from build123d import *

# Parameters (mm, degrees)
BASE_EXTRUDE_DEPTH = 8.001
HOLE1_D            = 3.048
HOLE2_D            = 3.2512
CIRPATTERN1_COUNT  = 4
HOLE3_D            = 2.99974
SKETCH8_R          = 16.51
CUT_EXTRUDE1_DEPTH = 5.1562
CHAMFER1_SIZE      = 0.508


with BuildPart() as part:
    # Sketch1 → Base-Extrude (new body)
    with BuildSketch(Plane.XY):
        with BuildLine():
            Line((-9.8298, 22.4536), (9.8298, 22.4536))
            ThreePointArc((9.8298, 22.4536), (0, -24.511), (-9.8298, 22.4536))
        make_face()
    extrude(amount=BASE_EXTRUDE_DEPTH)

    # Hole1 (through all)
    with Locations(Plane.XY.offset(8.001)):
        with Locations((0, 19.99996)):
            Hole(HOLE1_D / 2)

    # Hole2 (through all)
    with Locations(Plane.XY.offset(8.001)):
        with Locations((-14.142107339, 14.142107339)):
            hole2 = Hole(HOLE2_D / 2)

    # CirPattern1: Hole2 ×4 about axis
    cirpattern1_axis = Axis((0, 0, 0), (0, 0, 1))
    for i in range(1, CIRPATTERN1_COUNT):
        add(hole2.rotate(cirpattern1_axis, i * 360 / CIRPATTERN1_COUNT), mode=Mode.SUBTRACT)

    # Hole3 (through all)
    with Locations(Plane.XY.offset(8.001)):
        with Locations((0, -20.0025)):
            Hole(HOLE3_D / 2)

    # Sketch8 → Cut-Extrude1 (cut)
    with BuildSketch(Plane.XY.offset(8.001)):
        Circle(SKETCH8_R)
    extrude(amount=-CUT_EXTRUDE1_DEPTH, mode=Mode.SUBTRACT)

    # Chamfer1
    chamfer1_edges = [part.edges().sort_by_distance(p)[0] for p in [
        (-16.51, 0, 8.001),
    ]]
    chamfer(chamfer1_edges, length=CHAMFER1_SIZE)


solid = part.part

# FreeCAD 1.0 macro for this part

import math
import FreeCAD as App
import Part
import Sketcher

V = App.Vector
Q = App.Units.Quantity


def edges_at(feature, points):
    """Names of the edges that pass closest to the given points."""
    edges = feature.Shape.Edges
    near = lambda p: min(range(len(edges)), key=lambda i: edges[i].distToShape(Part.Vertex(*p))[0])
    return sorted({f"Edge{near(p) + 1}" for p in points})

doc = App.newDocument("Part")
body = doc.addObject("PartDesign::Body", "Body")

sketch1 = body.newObject("Sketcher::SketchObject", "Sketch")
sketch1.AttachmentSupport = (doc.getObject("XY_Plane"), [""])
sketch1.MapMode = "FlatFace"
sketch1.addGeometry(Part.LineSegment(V(10, 22, 0), V(-10, 22, 0)), False)
sketch1.addGeometry(Part.ArcOfCircle(Part.Circle(V(0, 0, 0), V(0, 0, 1), 25), math.radians(114), math.radians(426)), False)
sketch1.addConstraint(Sketcher.Constraint("Coincident", 0, 1, 1, 2))
sketch1.addConstraint(Sketcher.Constraint("Coincident", 1, 1, 0, 2))
sketch1.addConstraint(Sketcher.Constraint("Horizontal", 0))
sketch1.addConstraint(Sketcher.Constraint("Coincident", 1, 3, -1, 1))
sketch1.addConstraint(Sketcher.Constraint("Radius", 1, Q("0.965 in")))
sketch1.addConstraint(Sketcher.Constraint("DistanceX", 0, 2, 0, 1, Q("0.774 in")))
pad1 = body.newObject("PartDesign::Pad", "Pad")
pad1.Profile = sketch1
pad1.Length = Q("0.315 in")

sketch2 = body.newObject("Sketcher::SketchObject", "Sketch001")
sketch2.AttachmentSupport = (doc.getObject("XY_Plane"), [""])
sketch2.MapMode = "FlatFace"
sketch2.AttachmentOffset = App.Placement(V(0, 0, 0.315 * 25.4), App.Rotation())
sketch2.addGeometry(Part.Circle(V(0, 19.99996, 0), V(0, 0, 1), 1.524), False)
sketch2.addConstraint(Sketcher.Constraint("PointOnObject", 0, 3, -2))
sketch2.addConstraint(Sketcher.Constraint("Diameter", 0, Q("0.12 in")))
sketch2.addConstraint(Sketcher.Constraint("DistanceY", -1, 1, 0, 3, Q("0.7874 in")))
doc.recompute()
hole = body.newObject("PartDesign::Hole", "Hole")
hole.Profile = sketch2
hole.ThreadType = "None"
hole.Diameter = Q("0.12 in")
hole.DepthType = "ThroughAll"

sketch3 = body.newObject("Sketcher::SketchObject", "Sketch002")
sketch3.AttachmentSupport = (doc.getObject("XY_Plane"), [""])
sketch3.MapMode = "FlatFace"
sketch3.AttachmentOffset = App.Placement(V(0, 0, 0.315 * 25.4), App.Rotation())
sketch3.addGeometry(Part.Circle(V(-14.1, 14.1, 0), V(0, 0, 1), 1.6), False)
sketch3.addConstraint(Sketcher.Constraint("Diameter", 0, Q("0.128 in")))
sketch3.addConstraint(Sketcher.Constraint("DistanceX", 0, 3, -1, 1, 14.142107))
sketch3.addConstraint(Sketcher.Constraint("DistanceY", -1, 1, 0, 3, 14.142107))
doc.recompute()
hole2 = body.newObject("PartDesign::Hole", "Hole001")
hole2.Profile = sketch3
hole2.ThreadType = "None"
hole2.Diameter = Q("0.128 in")
hole2.DepthType = "ThroughAll"
doc.recompute()

polarpattern = body.newObject("PartDesign::PolarPattern", "PolarPattern")
polarpattern.Originals = [hole2]
polarpattern.Axis = (doc.getObject("Z_Axis"), [""])
polarpattern.Angle = 360
polarpattern.Occurrences = 4
body.Tip = polarpattern

sketch4 = body.newObject("Sketcher::SketchObject", "Sketch003")
sketch4.AttachmentSupport = (doc.getObject("XY_Plane"), [""])
sketch4.MapMode = "FlatFace"
sketch4.AttachmentOffset = App.Placement(V(0, 0, 0.315 * 25.4), App.Rotation())
sketch4.addGeometry(Part.Circle(V(0, -20, 0), V(0, 0, 1), 1.5), False)
sketch4.addConstraint(Sketcher.Constraint("PointOnObject", 0, 3, -2))
sketch4.addConstraint(Sketcher.Constraint("Diameter", 0, Q("0.1181 in")))
sketch4.addConstraint(Sketcher.Constraint("DistanceY", 0, 3, -1, 1, Q("0.7875 in")))
doc.recompute()
hole3 = body.newObject("PartDesign::Hole", "Hole002")
hole3.Profile = sketch4
hole3.ThreadType = "None"
hole3.Diameter = Q("0.1181 in")
hole3.DepthType = "ThroughAll"

sketch5 = body.newObject("Sketcher::SketchObject", "Sketch004")
sketch5.AttachmentSupport = (doc.getObject("XY_Plane"), [""])
sketch5.MapMode = "FlatFace"
sketch5.AttachmentOffset = App.Placement(V(0, 0, 0.315 * 25.4), App.Rotation())
sketch5.addGeometry(Part.Circle(V(0, 0, 0), V(0, 0, 1), 17), False)
sketch5.addConstraint(Sketcher.Constraint("Coincident", 0, 3, -1, 1))
sketch5.addConstraint(Sketcher.Constraint("Diameter", 0, Q("1.3 in")))
pocket1 = body.newObject("PartDesign::Pocket", "Pocket")
pocket1.Profile = sketch5
pocket1.Length = Q("0.203 in")
doc.recompute()

chamfer = body.newObject("PartDesign::Chamfer", "Chamfer")
chamfer.Base = (pocket1, edges_at(pocket1, [(-16.51, 0, 8.001)]))
chamfer.Size = Q("0.02 in")

doc.recompute()
